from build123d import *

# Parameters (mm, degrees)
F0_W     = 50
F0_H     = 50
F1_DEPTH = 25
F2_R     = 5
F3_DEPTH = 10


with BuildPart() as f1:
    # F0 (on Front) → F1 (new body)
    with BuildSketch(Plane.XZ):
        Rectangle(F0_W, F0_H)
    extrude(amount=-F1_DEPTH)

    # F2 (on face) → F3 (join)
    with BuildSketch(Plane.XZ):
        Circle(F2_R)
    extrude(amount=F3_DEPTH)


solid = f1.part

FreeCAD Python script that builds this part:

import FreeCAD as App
import Part
import Sketcher

V = App.Vector


def add_polygon(sketch, points):
    """Adds a closed chain of lines whose ends are joined by coincident constraints."""
    first, n = sketch.GeometryCount, len(points)
    for a, b in zip(points, points[1:] + points[:1]):
        sketch.addGeometry(Part.LineSegment(App.Vector(*a, 0), App.Vector(*b, 0)), False)
    for i in range(n):
        sketch.addConstraint(Sketcher.Constraint("Coincident", first + i, 2, first + (i + 1) % n, 1))

doc = App.newDocument("Part")
body = doc.addObject("PartDesign::Body", "Body")

# Sketch on XZ plane
sketch1 = body.newObject("Sketcher::SketchObject", "Sketch")
sketch1.AttachmentSupport = (doc.getObject("XZ_Plane"), [""])
sketch1.MapMode = "FlatFace"
add_polygon(sketch1, [(-25, 25), (-25, -25), (25, -25), (25, 25)])  # lines 0-3
sketch1.addConstraint([
    Sketcher.Constraint("Vertical", 0),
    Sketcher.Constraint("Horizontal", 1),
    Sketcher.Constraint("Vertical", 2),
    Sketcher.Constraint("Horizontal", 3),
    Sketcher.Constraint("Symmetric", 0, 2, 2, 2, -1, 1),
    Sketcher.Constraint("Equal", 3, 0),
    Sketcher.Constraint("DistanceX", 1, 1, 1, 2, 50.0),
])
pad1 = body.newObject("PartDesign::Pad", "Pad")
pad1.Profile = sketch1
pad1.Length = 25
pad1.Reversed = True

# Sketch on XZ plane
sketch2 = body.newObject("Sketcher::SketchObject", "Sketch001")
sketch2.AttachmentSupport = (doc.getObject("XZ_Plane"), [""])
sketch2.MapMode = "FlatFace"
sketch2.addGeometry(Part.Circle(V(0, 0, 0), V(0, 0, 1), 5), False)
sketch2.addConstraint([
    Sketcher.Constraint("Coincident", 0, 3, -1, 1),
    Sketcher.Constraint("Diameter", 0, 10.0),
])
pad2 = body.newObject("PartDesign::Pad", "Pad001")
pad2.Profile = sketch2
pad2.Length = 10

doc.recompute()
